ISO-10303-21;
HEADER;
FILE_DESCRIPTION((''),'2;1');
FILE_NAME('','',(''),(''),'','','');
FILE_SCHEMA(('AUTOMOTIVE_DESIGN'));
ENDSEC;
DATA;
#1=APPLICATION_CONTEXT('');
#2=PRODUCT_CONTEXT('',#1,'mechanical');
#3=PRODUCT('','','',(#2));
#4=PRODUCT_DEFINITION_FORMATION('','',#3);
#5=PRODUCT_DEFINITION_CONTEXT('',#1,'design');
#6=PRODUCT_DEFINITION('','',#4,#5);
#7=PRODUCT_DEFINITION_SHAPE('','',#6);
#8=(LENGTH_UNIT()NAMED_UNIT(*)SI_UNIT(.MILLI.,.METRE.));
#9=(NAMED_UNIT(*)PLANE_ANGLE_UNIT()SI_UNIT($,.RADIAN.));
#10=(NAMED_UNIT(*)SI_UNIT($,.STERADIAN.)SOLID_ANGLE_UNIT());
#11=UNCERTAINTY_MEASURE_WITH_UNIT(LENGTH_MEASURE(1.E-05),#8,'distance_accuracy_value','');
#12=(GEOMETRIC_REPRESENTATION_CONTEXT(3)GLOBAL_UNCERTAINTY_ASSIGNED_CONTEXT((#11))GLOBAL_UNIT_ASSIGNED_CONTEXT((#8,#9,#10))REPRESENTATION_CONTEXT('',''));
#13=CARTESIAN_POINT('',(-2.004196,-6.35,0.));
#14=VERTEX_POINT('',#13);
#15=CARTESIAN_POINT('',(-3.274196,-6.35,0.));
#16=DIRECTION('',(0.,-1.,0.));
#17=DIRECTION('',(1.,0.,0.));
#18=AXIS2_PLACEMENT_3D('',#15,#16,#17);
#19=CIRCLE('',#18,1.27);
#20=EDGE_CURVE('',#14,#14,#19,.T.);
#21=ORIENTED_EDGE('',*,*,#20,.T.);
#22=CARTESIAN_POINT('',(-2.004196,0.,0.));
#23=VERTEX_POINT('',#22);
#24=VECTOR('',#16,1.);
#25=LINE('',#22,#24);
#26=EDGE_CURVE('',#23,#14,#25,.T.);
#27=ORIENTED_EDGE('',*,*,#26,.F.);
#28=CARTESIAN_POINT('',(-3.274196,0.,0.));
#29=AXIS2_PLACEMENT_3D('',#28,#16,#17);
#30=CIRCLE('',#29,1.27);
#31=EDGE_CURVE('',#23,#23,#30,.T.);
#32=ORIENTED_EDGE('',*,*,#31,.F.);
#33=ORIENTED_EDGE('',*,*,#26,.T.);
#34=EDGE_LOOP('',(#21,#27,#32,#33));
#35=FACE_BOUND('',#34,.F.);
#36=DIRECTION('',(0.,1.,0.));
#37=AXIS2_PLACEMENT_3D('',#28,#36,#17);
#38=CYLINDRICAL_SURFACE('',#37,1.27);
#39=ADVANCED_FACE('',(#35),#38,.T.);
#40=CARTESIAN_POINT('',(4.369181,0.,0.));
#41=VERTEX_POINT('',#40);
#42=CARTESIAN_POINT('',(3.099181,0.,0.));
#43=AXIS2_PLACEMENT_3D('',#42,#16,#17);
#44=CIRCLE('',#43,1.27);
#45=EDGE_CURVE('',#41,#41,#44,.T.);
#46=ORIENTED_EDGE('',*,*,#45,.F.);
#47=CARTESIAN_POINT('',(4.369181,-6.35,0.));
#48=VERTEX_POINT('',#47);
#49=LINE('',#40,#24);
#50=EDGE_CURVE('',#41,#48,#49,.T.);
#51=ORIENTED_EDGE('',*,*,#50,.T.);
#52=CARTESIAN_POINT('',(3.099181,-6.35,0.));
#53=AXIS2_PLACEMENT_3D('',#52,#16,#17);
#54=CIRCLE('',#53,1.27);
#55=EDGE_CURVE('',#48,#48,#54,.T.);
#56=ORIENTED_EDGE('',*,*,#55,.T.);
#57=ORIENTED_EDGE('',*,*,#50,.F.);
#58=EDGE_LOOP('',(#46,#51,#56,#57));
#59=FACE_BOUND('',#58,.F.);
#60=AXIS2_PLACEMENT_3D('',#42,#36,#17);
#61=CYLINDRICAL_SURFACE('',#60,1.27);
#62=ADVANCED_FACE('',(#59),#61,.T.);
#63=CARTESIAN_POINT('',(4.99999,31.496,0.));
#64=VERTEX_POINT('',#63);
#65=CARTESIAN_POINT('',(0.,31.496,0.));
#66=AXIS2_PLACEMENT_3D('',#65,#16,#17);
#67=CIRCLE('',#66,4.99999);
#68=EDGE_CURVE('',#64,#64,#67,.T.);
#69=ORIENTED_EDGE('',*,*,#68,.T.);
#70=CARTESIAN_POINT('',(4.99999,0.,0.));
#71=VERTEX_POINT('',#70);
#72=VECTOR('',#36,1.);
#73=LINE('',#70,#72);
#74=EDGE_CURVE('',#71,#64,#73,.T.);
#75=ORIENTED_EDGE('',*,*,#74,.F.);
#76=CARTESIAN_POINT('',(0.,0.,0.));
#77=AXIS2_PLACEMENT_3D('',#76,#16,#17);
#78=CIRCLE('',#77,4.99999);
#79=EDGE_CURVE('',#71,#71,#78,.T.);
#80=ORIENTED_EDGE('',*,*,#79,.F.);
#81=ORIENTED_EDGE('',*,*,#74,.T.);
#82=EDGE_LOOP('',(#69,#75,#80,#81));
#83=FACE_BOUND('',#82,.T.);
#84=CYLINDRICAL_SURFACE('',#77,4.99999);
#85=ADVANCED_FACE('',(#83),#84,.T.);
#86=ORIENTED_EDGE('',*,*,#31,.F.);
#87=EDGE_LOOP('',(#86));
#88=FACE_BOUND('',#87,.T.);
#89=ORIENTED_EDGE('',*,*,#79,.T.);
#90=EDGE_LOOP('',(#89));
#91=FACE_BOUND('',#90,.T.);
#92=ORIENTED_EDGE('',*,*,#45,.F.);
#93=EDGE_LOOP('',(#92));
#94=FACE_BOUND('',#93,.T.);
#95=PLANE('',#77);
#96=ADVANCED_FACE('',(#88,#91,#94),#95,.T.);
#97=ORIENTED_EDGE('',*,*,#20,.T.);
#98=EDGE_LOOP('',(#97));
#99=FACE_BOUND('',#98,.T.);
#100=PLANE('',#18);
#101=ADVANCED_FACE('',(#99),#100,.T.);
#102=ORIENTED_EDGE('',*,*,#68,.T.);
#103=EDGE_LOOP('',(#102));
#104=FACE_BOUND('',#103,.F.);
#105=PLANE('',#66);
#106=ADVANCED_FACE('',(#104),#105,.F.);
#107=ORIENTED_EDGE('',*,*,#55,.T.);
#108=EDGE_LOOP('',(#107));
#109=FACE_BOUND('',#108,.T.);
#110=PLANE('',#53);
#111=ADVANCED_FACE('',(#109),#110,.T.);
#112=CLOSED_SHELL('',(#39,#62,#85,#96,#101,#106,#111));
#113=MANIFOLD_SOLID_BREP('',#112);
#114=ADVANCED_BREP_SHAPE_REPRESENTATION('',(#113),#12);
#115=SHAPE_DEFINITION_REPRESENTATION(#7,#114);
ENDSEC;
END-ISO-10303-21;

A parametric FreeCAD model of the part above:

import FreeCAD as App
import Part
import Sketcher
from FreeCAD import Vector
Q = App.Units.Quantity

doc = App.newDocument("Part")
body = doc.addObject("PartDesign::Body", "Body")

# Sketch on XZ plane
sketch1 = doc.addObject("Sketcher::SketchObject", "Sketch")
body.addObject(sketch1)
sketch1.AttachmentSupport = (doc.XZ_Plane, [""])
sketch1.MapMode = "FlatFace"
sketch1.addGeometry(Part.Circle(Vector(0, 0, 0), Vector(0, 0, 1), 5), False)
sketch1.addConstraint(Sketcher.Constraint("Coincident", 0, 3, -1, 1))
sketch1.addConstraint(Sketcher.Constraint("Diameter", 0, Q("0.3937 in")))
pad1 = doc.addObject("PartDesign::Pad", "Pad")
body.addObject(pad1)
pad1.Profile = sketch1
pad1.Length = Q("1.24 in")
pad1.Reversed = True

# Sketch on XZ plane
sketch2 = doc.addObject("Sketcher::SketchObject", "Sketch001")
body.addObject(sketch2)
sketch2.AttachmentSupport = (doc.XZ_Plane, [""])
sketch2.MapMode = "FlatFace"
sketch2.addGeometry(Part.Circle(Vector(-3.3, 0, 0), Vector(0, 0, 1), 1.3), False)
sketch2.addGeometry(Part.Circle(Vector(3.1, 0, 0), Vector(0, 0, 1), 1.3), False)
sketch2.addConstraint(Sketcher.Constraint("Equal", 0, 1))
sketch2.addConstraint(Sketcher.Constraint("PointOnObject", 0, 3, -1))
sketch2.addConstraint(Sketcher.Constraint("PointOnObject", 1, 3, -1))
sketch2.addConstraint(Sketcher.Constraint("Diameter", 0, Q("0.1 in")))
sketch2.addConstraint(Sketcher.Constraint("DistanceX", -1, 1, 1, 3, Q("3.099181 mm")))
sketch2.addConstraint(Sketcher.Constraint("DistanceX", 0, 3, -1, 1, Q("3.274196 mm")))
pad2 = doc.addObject("PartDesign::Pad", "Pad001")
body.addObject(pad2)
pad2.Profile = sketch2
pad2.Length = Q("0.25 in")

doc.recompute()
